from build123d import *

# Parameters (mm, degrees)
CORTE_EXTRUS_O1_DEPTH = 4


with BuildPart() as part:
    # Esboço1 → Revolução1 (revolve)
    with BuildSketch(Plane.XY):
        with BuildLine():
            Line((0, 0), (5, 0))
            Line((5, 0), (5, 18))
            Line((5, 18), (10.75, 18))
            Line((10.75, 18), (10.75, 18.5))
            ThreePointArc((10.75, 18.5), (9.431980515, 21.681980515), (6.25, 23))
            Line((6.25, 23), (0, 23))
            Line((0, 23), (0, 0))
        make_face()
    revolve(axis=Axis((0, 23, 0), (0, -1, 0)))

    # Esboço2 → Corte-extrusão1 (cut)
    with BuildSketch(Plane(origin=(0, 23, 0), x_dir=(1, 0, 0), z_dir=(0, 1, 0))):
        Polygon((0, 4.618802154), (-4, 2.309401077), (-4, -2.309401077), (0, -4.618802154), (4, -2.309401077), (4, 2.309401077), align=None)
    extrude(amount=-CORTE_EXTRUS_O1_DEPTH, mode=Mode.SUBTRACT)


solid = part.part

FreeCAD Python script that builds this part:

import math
import FreeCAD as App
import Part
import Sketcher
Q = App.Units.Quantity


def add_polygon(sketch, points):
    """Adds a closed chain of lines whose ends are joined by coincident constraints."""
    first, n = sketch.GeometryCount, len(points)
    for a, b in zip(points, points[1:] + points[:1]):
        sketch.addGeometry(Part.LineSegment(App.Vector(*a, 0), App.Vector(*b, 0)), False)
    for i in range(n):
        sketch.addConstraint(Sketcher.Constraint("Coincident", first + i, 2, first + (i + 1) % n, 1))

doc = App.newDocument("Part")
params = doc.addObject("Spreadsheet::Sheet", "Params")
for row, (alias, value) in enumerate([
    ("sketch1_radius", "4.5 mm"),
    ("sketch1_width", "5 mm"),
    ("sketch1_height", "18 mm"),
    ("sketch1_height2", "23 mm"),
    ("sketch1_width2", "5.75 mm"),
    ("revolution_angle", "360 deg"),
    ("pocket1_length", "4 mm"),
], start=1):
    params.set(f"A{row}", alias)
    params.set(f"B{row}", "=" + value)
    params.setAlias(f"B{row}", alias)

body = doc.addObject("PartDesign::Body", "Body")

# Sketch on XY plane
sketch1 = body.newObject("Sketcher::SketchObject", "Sketch")
sketch1.AttachmentSupport = (doc.getObject("XY_Plane"), [""])
sketch1.MapMode = "FlatFace"
sketch1.addGeometry(Part.LineSegment(App.Vector(0, 0, 0), App.Vector(5, 0, 0)), False)
sketch1.addGeometry(Part.LineSegment(App.Vector(5, 0, 0), App.Vector(5, 18, 0)), False)
sketch1.addGeometry(Part.LineSegment(App.Vector(5, 18, 0), App.Vector(10.8, 18, 0)), False)
sketch1.addGeometry(Part.LineSegment(App.Vector(10.8, 18, 0), App.Vector(10.8, 18.5, 0)), False)
sketch1.addGeometry(Part.ArcOfCircle(Part.Circle(App.Vector(6.2, 18.5, 0), App.Vector(0, 0, 1), 4.5), math.radians(0), math.radians(90)), False)
sketch1.addGeometry(Part.LineSegment(App.Vector(6.2, 23, 0), App.Vector(0, 23, 0)), False)
sketch1.addGeometry(Part.LineSegment(App.Vector(0, 23, 0), App.Vector(0, 0, 0)), False)
sketch1.addConstraint(Sketcher.Constraint("Coincident", 0, 2, 1, 1))
sketch1.addConstraint(Sketcher.Constraint("Coincident", 1, 2, 2, 1))
sketch1.addConstraint(Sketcher.Constraint("Coincident", 2, 2, 3, 1))
sketch1.addConstraint(Sketcher.Constraint("Tangent", 3, 2, 4, 1))
sketch1.addConstraint(Sketcher.Constraint("Tangent", 4, 2, 5, 1))
sketch1.addConstraint(Sketcher.Constraint("Coincident", 5, 2, 6, 1))
sketch1.addConstraint(Sketcher.Constraint("Coincident", 6, 2, 0, 1))
sketch1.addConstraint(Sketcher.Constraint("Horizontal", 0))
sketch1.addConstraint(Sketcher.Constraint("Vertical", 1))
sketch1.addConstraint(Sketcher.Constraint("Horizontal", 2))
sketch1.addConstraint(Sketcher.Constraint("Vertical", 3))
sketch1.addConstraint(Sketcher.Constraint("Horizontal", 5))
sketch1.addConstraint(Sketcher.Constraint("Vertical", 6))
sketch1.addConstraint(Sketcher.Constraint("Coincident", 6, 2, -1, 1))
sketch1.addConstraint(Sketcher.Constraint("Radius", 4, 4.5))
sketch1.addConstraint(Sketcher.Constraint("DistanceX", 0, 1, 0, 2, 5.0))
sketch1.addConstraint(Sketcher.Constraint("DistanceY", 1, 1, 1, 2, 18.0))
sketch1.addConstraint(Sketcher.Constraint("DistanceY", 6, 2, 6, 1, 23.0))
sketch1.addConstraint(Sketcher.Constraint("DistanceX", 2, 1, 2, 2, 5.75))
sketch1.setExpression("Constraints[14]", "Params.sketch1_radius")
sketch1.setExpression("Constraints[15]", "Params.sketch1_width")
sketch1.setExpression("Constraints[16]", "Params.sketch1_height")
sketch1.setExpression("Constraints[17]", "Params.sketch1_height2")
sketch1.setExpression("Constraints[18]", "Params.sketch1_width2")
revolution = body.newObject("PartDesign::Revolution", "Revolution")
revolution.Profile = sketch1
revolution.ReferenceAxis = (sketch1, ["V_Axis"])
revolution.setExpression("Angle", "Params.revolution_angle")

# Sketch on XZ plane
sketch2 = body.newObject("Sketcher::SketchObject", "Sketch001")
sketch2.AttachmentSupport = (doc.getObject("XZ_Plane"), [""])
sketch2.MapMode = "FlatFace"
sketch2.AttachmentOffset = App.Placement(App.Vector(0, 0, -23), App.Rotation())
add_polygon(sketch2, [(0, -4.6), (-4, -2.3), (-4, 2.3), (0, 4.6), (4, 2.3), (4, -2.3)])  # lines 0-5
sketch2.addConstraint(Sketcher.Constraint("Vertical", 1))
sketch2.addConstraint(Sketcher.Constraint("Vertical", 4))
sketch2.addConstraint(Sketcher.Constraint("Symmetric", 0, 2, 3, 2, -1, 1))
sketch2.addConstraint(Sketcher.Constraint("Symmetric", 2, 2, 5, 2, -1, 1))
sketch2.addConstraint(Sketcher.Constraint("PointOnObject", 2, 2, -2))
sketch2.addConstraint(Sketcher.Constraint("Parallel", 2, 5))
sketch2.addConstraint(Sketcher.Constraint("Horizontal", 1, 2, 3, 2))
sketch2.addConstraint(Sketcher.Constraint("Angle", 0, Q("150 deg")))
sketch2.addConstraint(Sketcher.Constraint("DistanceX", 0, 2, -1, 1, 4.0))
sketch2.addConstraint(Sketcher.Constraint("DistanceY", 0, 2, -1, 1, 2.309401))
pocket1 = body.newObject("PartDesign::Pocket", "Pocket")
pocket1.Profile = sketch2
pocket1.setExpression("Length", "Params.pocket1_length")
pocket1.Reversed = True

doc.recompute()
